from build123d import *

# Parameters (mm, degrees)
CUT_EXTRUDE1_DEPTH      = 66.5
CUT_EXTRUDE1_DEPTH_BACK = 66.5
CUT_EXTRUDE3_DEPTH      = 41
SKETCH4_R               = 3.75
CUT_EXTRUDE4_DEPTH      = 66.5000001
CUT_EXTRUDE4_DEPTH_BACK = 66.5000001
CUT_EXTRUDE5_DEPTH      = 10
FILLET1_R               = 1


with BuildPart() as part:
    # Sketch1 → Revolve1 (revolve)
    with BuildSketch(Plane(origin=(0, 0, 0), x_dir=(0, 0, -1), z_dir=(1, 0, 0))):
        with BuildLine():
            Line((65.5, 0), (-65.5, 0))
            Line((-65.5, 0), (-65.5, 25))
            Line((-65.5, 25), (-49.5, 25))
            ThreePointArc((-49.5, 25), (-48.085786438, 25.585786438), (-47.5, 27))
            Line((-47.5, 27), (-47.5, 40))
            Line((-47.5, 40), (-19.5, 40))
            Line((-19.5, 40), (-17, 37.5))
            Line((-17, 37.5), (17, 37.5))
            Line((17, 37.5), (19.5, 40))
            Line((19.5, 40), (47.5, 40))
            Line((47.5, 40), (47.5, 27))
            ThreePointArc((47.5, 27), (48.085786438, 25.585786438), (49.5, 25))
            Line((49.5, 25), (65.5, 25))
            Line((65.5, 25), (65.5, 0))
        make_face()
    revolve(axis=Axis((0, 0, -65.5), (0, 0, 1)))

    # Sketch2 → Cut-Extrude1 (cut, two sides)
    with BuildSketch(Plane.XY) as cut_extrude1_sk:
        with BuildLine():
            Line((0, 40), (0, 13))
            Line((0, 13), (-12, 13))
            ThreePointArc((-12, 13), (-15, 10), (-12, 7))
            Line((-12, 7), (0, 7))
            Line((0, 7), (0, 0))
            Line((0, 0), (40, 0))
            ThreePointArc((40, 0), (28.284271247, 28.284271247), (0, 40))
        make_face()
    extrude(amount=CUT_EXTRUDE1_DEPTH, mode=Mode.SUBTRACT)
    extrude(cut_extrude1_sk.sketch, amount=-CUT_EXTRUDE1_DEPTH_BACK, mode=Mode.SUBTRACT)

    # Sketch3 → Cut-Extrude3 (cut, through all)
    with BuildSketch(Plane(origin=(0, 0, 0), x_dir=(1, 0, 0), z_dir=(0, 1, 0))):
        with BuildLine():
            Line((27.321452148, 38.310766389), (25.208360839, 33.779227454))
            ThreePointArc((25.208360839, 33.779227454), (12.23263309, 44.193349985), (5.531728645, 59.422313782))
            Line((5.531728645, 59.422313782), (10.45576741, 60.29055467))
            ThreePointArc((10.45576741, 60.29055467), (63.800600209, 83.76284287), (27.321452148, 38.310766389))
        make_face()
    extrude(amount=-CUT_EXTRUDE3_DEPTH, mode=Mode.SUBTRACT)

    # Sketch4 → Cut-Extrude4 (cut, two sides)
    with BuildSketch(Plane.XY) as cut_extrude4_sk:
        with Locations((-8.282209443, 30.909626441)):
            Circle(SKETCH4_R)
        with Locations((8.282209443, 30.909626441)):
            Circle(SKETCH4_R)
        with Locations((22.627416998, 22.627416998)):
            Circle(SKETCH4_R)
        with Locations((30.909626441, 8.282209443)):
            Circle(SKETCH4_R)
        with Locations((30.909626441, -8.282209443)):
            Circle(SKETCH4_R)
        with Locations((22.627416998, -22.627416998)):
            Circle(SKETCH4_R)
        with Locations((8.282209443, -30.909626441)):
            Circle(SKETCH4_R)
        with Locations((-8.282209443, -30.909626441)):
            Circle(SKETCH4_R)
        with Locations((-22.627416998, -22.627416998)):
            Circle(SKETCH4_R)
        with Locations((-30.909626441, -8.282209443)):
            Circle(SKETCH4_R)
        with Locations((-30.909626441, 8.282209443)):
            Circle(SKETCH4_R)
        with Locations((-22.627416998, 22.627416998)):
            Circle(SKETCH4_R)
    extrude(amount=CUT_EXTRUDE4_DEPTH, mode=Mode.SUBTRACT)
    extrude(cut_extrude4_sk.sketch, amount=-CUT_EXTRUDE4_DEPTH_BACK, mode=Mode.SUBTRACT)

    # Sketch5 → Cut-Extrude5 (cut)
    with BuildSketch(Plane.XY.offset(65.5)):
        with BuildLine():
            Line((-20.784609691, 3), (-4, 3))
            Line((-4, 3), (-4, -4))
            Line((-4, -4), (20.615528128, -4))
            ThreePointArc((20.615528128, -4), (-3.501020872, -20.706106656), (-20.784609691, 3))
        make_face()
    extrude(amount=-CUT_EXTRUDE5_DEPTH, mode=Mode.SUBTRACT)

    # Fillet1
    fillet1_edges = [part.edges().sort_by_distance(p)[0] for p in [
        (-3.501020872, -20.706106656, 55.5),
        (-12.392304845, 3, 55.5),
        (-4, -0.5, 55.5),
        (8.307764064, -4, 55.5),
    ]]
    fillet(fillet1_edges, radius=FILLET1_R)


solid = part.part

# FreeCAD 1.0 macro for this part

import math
import FreeCAD as App
import Part
import Sketcher
Q = App.Units.Quantity


def edges_at(feature, points):
    """Names of the edges that pass closest to the given points."""
    edges = feature.Shape.Edges
    near = lambda p: min(range(len(edges)), key=lambda i: edges[i].distToShape(Part.Vertex(*p))[0])
    return sorted({f"Edge{near(p) + 1}" for p in points})

doc = App.newDocument("Part")
params = doc.addObject("Spreadsheet::Sheet", "Params")
for row, (alias, value) in enumerate([
    ("sketch1_radius", "2 mm"),
    ("sketch1_width", "25 mm"),
    ("sketch1_width2", "13 mm"),
    ("sketch1_height", "131 mm"),
    ("sketch1_height2", "16 mm"),
    ("revolution_angle", "360 deg"),
    ("sketch2_radius", "3 mm"),
    ("sketch2_radius2", "40 mm"),
    ("sketch2_width", "12 mm"),
    ("sketch2_height", "27 mm"),
    ("sketch3_radius", "30 mm"),
    ("sketch3_radius2", "35 mm"),
    ("sketch4_diameter", "7.5 mm"),
    ("sketch5_radius", "21 mm"),
    ("sketch5_height", "7 mm"),
    ("pocket4_length", "10 mm"),
    ("fillet_radius", "1 mm"),
], start=1):
    params.set(f"A{row}", alias)
    params.set(f"B{row}", "=" + value)
    params.setAlias(f"B{row}", alias)

body = doc.addObject("PartDesign::Body", "Body")

# Sketch on YZ plane
sketch1 = doc.addObject("Sketcher::SketchObject", "Sketch")
body.addObject(sketch1)
sketch1.AttachmentSupport = (doc.YZ_Plane, [""])
sketch1.MapMode = "FlatFace"
sketch1.addGeometry([
    Part.LineSegment(App.Vector(0, 65.5, 0), App.Vector(0, -65.5, 0)),  # 0
    Part.LineSegment(App.Vector(0, -65.5, 0), App.Vector(25, -65.5, 0)),  # 1
    Part.LineSegment(App.Vector(25, -65.5, 0), App.Vector(25, -49.5, 0)),  # 2
    Part.ArcOfCircle(Part.Circle(App.Vector(27, -49.5, 0), App.Vector(0, 0, 1), 2), math.radians(90), math.radians(180)),  # 3
    Part.LineSegment(App.Vector(27, -47.5, 0), App.Vector(40, -47.5, 0)),  # 4
    Part.LineSegment(App.Vector(40, -47.5, 0), App.Vector(40, -19.5, 0)),  # 5
    Part.LineSegment(App.Vector(40, -19.5, 0), App.Vector(37.5, -17, 0)),  # 6
    Part.LineSegment(App.Vector(37.5, -17, 0), App.Vector(37.5, 17, 0)),  # 7
    Part.LineSegment(App.Vector(37.5, 17, 0), App.Vector(40, 19.5, 0)),  # 8
    Part.LineSegment(App.Vector(40, 19.5, 0), App.Vector(40, 47.5, 0)),  # 9
    Part.LineSegment(App.Vector(40, 47.5, 0), App.Vector(27, 47.5, 0)),  # 10
    Part.ArcOfCircle(Part.Circle(App.Vector(27, 49.5, 0), App.Vector(0, 0, 1), 2), math.radians(-180), math.radians(-90)),  # 11
    Part.LineSegment(App.Vector(25, 49.5, 0), App.Vector(25, 65.5, 0)),  # 12
    Part.LineSegment(App.Vector(25, 65.5, 0), App.Vector(0, 65.5, 0)),  # 13
], False)
sketch1.addConstraint([
    Sketcher.Constraint("Coincident", 0, 2, 1, 1),
    Sketcher.Constraint("Coincident", 1, 2, 2, 1),
    Sketcher.Constraint("Tangent", 2, 2, 3, 2),
    Sketcher.Constraint("Tangent", 3, 1, 4, 1),
    Sketcher.Constraint("Coincident", 4, 2, 5, 1),
    Sketcher.Constraint("Coincident", 5, 2, 6, 1),
    Sketcher.Constraint("Coincident", 6, 2, 7, 1),
    Sketcher.Constraint("Coincident", 7, 2, 8, 1),
    Sketcher.Constraint("Coincident", 8, 2, 9, 1),
    Sketcher.Constraint("Coincident", 9, 2, 10, 1),
    Sketcher.Constraint("Tangent", 10, 2, 11, 2),
    Sketcher.Constraint("Tangent", 11, 1, 12, 1),
    Sketcher.Constraint("Coincident", 12, 2, 13, 1),
    Sketcher.Constraint("Coincident", 13, 2, 0, 1),
    Sketcher.Constraint("Vertical", 0),
    Sketcher.Constraint("Horizontal", 1),
    Sketcher.Constraint("Vertical", 2),
    Sketcher.Constraint("Horizontal", 4),
    Sketcher.Constraint("Vertical", 5),
    Sketcher.Constraint("Vertical", 7),
    Sketcher.Constraint("Vertical", 9),
    Sketcher.Constraint("Horizontal", 10),
    Sketcher.Constraint("Vertical", 12),
    Sketcher.Constraint("Horizontal", 13),
    Sketcher.Constraint("Equal", 3, 11),
    Sketcher.Constraint("Symmetric", 0, 2, 13, 2, -1, 1),
    Sketcher.Constraint("Symmetric", 3, 3, 11, 3, -1),
    Sketcher.Constraint("Symmetric", 5, 2, 8, 2, -1),
    Sketcher.Constraint("Perpendicular", 6, 8),
    Sketcher.Constraint("Equal", 6, 8),
    Sketcher.Constraint("Radius", 3, Q("2 mm")),
    Sketcher.Constraint("DistanceX", 1, 1, 1, 2, Q("25 mm")),
    Sketcher.Constraint("DistanceX", 4, 1, 4, 2, Q("13 mm")),
    Sketcher.Constraint("DistanceY", 0, 2, 0, 1, Q("131 mm")),
    Sketcher.Constraint("DistanceY", 2, 1, 2, 2, Q("16 mm")),
    Sketcher.Constraint("DistanceY", 5, 1, 5, 2, Q("28 mm")),
    Sketcher.Constraint("DistanceY", 7, 1, 7, 2, Q("34 mm")),
])
sketch1.setExpression("Constraints[30]", "Params.sketch1_radius")
sketch1.setExpression("Constraints[31]", "Params.sketch1_width")
sketch1.setExpression("Constraints[32]", "Params.sketch1_width2")
sketch1.setExpression("Constraints[33]", "Params.sketch1_height")
sketch1.setExpression("Constraints[34]", "Params.sketch1_height2")
revolution = doc.addObject("PartDesign::Revolution", "Revolution")
body.addObject(revolution)
revolution.Profile = sketch1
revolution.ReferenceAxis = (sketch1, ["V_Axis"])
revolution.setExpression("Angle", "Params.revolution_angle")

# Sketch on XY plane
sketch2 = doc.addObject("Sketcher::SketchObject", "Sketch001")
body.addObject(sketch2)
sketch2.AttachmentSupport = (doc.XY_Plane, [""])
sketch2.MapMode = "FlatFace"
sketch2.addGeometry([
    Part.LineSegment(App.Vector(0, 40, 0), App.Vector(0, 13, 0)),  # 0
    Part.LineSegment(App.Vector(0, 13, 0), App.Vector(-12, 13, 0)),  # 1
    Part.ArcOfCircle(Part.Circle(App.Vector(-12, 10, 0), App.Vector(0, 0, 1), 3), math.radians(90), math.radians(270)),  # 2
    Part.LineSegment(App.Vector(-12, 7, 0), App.Vector(0, 7, 0)),  # 3
    Part.LineSegment(App.Vector(0, 7, 0), App.Vector(0, 0, 0)),  # 4
    Part.LineSegment(App.Vector(0, 0, 0), App.Vector(40, 0, 0)),  # 5
    Part.ArcOfCircle(Part.Circle(App.Vector(0, 0, 0), App.Vector(0, 0, 1), 40), math.radians(0), math.radians(90)),  # 6
], False)
sketch2.addConstraint([
    Sketcher.Constraint("Coincident", 0, 2, 1, 1),
    Sketcher.Constraint("Tangent", 1, 2, 2, 1),
    Sketcher.Constraint("Tangent", 2, 2, 3, 1),
    Sketcher.Constraint("Coincident", 3, 2, 4, 1),
    Sketcher.Constraint("Coincident", 4, 2, 5, 1),
    Sketcher.Constraint("Coincident", 5, 2, 6, 1),
    Sketcher.Constraint("Coincident", 6, 2, 0, 1),
    Sketcher.Constraint("Vertical", 0),
    Sketcher.Constraint("Horizontal", 1),
    Sketcher.Constraint("Horizontal", 3),
    Sketcher.Constraint("Vertical", 4),
    Sketcher.Constraint("Horizontal", 5),
    Sketcher.Constraint("Coincident", 6, 3, -1, 1),
    Sketcher.Constraint("Coincident", 4, 2, -1, 1),
    Sketcher.Constraint("PointOnObject", 0, 2, -2),
    Sketcher.Constraint("Radius", 2, Q("3 mm")),
    Sketcher.Constraint("Radius", 6, Q("40 mm")),
    Sketcher.Constraint("DistanceX", 1, 2, 1, 1, Q("12 mm")),
    Sketcher.Constraint("DistanceY", 0, 2, 0, 1, Q("27 mm")),
])
sketch2.setExpression("Constraints[15]", "Params.sketch2_radius")
sketch2.setExpression("Constraints[16]", "Params.sketch2_radius2")
sketch2.setExpression("Constraints[17]", "Params.sketch2_width")
sketch2.setExpression("Constraints[18]", "Params.sketch2_height")
pocket1 = doc.addObject("PartDesign::Pocket", "Pocket")
body.addObject(pocket1)
pocket1.Profile = sketch2
pocket1.Type = "ThroughAll"
pocket1.Midplane = True

# Sketch on XZ plane
sketch3 = doc.addObject("Sketcher::SketchObject", "Sketch002")
body.addObject(sketch3)
sketch3.AttachmentSupport = (doc.XZ_Plane, [""])
sketch3.MapMode = "FlatFace"
sketch3.addGeometry([
    Part.LineSegment(App.Vector(25.2, -33.8, 0), App.Vector(27.3, -38.3, 0)),
    Part.ArcOfCircle(Part.Circle(App.Vector(40, -65.5, 0), App.Vector(0, 0, 1), 30), math.radians(170), math.radians(475)),
    Part.LineSegment(App.Vector(10.5, -60.3, 0), App.Vector(5.5, -59.4, 0)),
    Part.ArcOfCircle(Part.Circle(App.Vector(40, -65.5, 0), App.Vector(0, 0, 1), 35), math.radians(115), math.radians(170)),
], False)
sketch3.addConstraint([
    Sketcher.Constraint("Coincident", 0, 2, 1, 2),
    Sketcher.Constraint("Coincident", 1, 1, 2, 1),
    Sketcher.Constraint("Coincident", 2, 2, 3, 2),
    Sketcher.Constraint("Coincident", 3, 1, 0, 1),
    Sketcher.Constraint("Coincident", 3, 3, 1, 3),
    Sketcher.Constraint("Radius", 1, Q("30 mm")),
    Sketcher.Constraint("Radius", 3, Q("35 mm")),
    Sketcher.Constraint("Angle", 0, Q("-65 deg")),
    Sketcher.Constraint("Angle", 2, Q("170 deg")),
    Sketcher.Constraint("DistanceX", -1, 1, 1, 3, Q("40 mm")),
    Sketcher.Constraint("DistanceY", 1, 3, -1, 1, Q("65.5 mm")),
    Sketcher.Constraint("DistanceX", -1, 1, 2, 2, Q("5.531729 mm")),
    Sketcher.Constraint("DistanceX", -1, 1, 3, 1, Q("25.208361 mm")),
])
sketch3.setExpression("Constraints[5]", "Params.sketch3_radius")
sketch3.setExpression("Constraints[6]", "Params.sketch3_radius2")
pocket2 = doc.addObject("PartDesign::Pocket", "Pocket001")
body.addObject(pocket2)
pocket2.Profile = sketch3
pocket2.Type = "ThroughAll"
pocket2.Reversed = True

# Sketch on XY plane
sketch4 = doc.addObject("Sketcher::SketchObject", "Sketch003")
body.addObject(sketch4)
sketch4.AttachmentSupport = (doc.XY_Plane, [""])
sketch4.MapMode = "FlatFace"
sketch4.addGeometry([
    Part.Circle(App.Vector(-8.3, 30.9, 0), App.Vector(0, 0, 1), 3.8),  # 0
    Part.Circle(App.Vector(8.3, 30.9, 0), App.Vector(0, 0, 1), 3.8),  # 1
    Part.Circle(App.Vector(22.6, 22.6, 0), App.Vector(0, 0, 1), 3.8),  # 2
    Part.Circle(App.Vector(30.9, 8.3, 0), App.Vector(0, 0, 1), 3.8),  # 3
    Part.Circle(App.Vector(30.9, -8.3, 0), App.Vector(0, 0, 1), 3.8),  # 4
    Part.Circle(App.Vector(22.6, -22.6, 0), App.Vector(0, 0, 1), 3.8),  # 5
    Part.Circle(App.Vector(8.3, -30.9, 0), App.Vector(0, 0, 1), 3.8),  # 6
    Part.Circle(App.Vector(-8.3, -30.9, 0), App.Vector(0, 0, 1), 3.8),  # 7
    Part.Circle(App.Vector(-22.6, -22.6, 0), App.Vector(0, 0, 1), 3.8),  # 8
    Part.Circle(App.Vector(-30.9, -8.3, 0), App.Vector(0, 0, 1), 3.8),  # 9
    Part.Circle(App.Vector(-30.9, 8.3, 0), App.Vector(0, 0, 1), 3.8),  # 10
    Part.Circle(App.Vector(-22.6, 22.6, 0), App.Vector(0, 0, 1), 3.8),  # 11
], False)
sketch4.addConstraint([
    Sketcher.Constraint("Equal", 0, 1),
    Sketcher.Constraint("Equal", 1, 2),
    Sketcher.Constraint("Equal", 2, 3),
    Sketcher.Constraint("Equal", 3, 4),
    Sketcher.Constraint("Equal", 4, 5),
    Sketcher.Constraint("Equal", 5, 6),
    Sketcher.Constraint("Equal", 6, 7),
    Sketcher.Constraint("Equal", 7, 8),
    Sketcher.Constraint("Equal", 8, 9),
    Sketcher.Constraint("Equal", 9, 10),
    Sketcher.Constraint("Equal", 10, 11),
    Sketcher.Constraint("Symmetric", 0, 3, 6, 3, -1, 1),
    Sketcher.Constraint("Symmetric", 1, 3, 7, 3, -1, 1),
    Sketcher.Constraint("Symmetric", 2, 3, 8, 3, -1, 1),
    Sketcher.Constraint("Symmetric", 3, 3, 9, 3, -1, 1),
    Sketcher.Constraint("Symmetric", 4, 3, 10, 3, -1, 1),
    Sketcher.Constraint("Symmetric", 5, 3, 11, 3, -1, 1),
    Sketcher.Constraint("Symmetric", 0, 3, 1, 3, -2),
    Sketcher.Constraint("Symmetric", 5, 3, 8, 3, -2),
    Sketcher.Constraint("Symmetric", 4, 3, 9, 3, -2),
    Sketcher.Constraint("Diameter", 0, Q("7.5 mm")),
    Sketcher.Constraint("DistanceX", 0, 3, -1, 1, Q("8.282209 mm")),
    Sketcher.Constraint("DistanceY", -1, 1, 3, 3, Q("8.282209 mm")),
    Sketcher.Constraint("DistanceY", 2, 3, 1, 3, Q("8.282209 mm")),
    Sketcher.Constraint("DistanceX", 2, 3, 3, 3, Q("8.282209 mm")),
    Sketcher.Constraint("DistanceY", -1, 1, 0, 3, Q("30.909626 mm")),
    Sketcher.Constraint("DistanceX", -1, 1, 2, 3, Q("22.627417 mm")),
])
sketch4.setExpression("Constraints[20]", "Params.sketch4_diameter")
pocket3 = doc.addObject("PartDesign::Pocket", "Pocket002")
body.addObject(pocket3)
pocket3.Profile = sketch4
pocket3.Type = "ThroughAll"
pocket3.Midplane = True

# Sketch on XY plane
sketch5 = doc.addObject("Sketcher::SketchObject", "Sketch004")
body.addObject(sketch5)
sketch5.AttachmentSupport = (doc.XY_Plane, [""])
sketch5.MapMode = "FlatFace"
sketch5.AttachmentOffset = App.Placement(App.Vector(0, 0, 65.5), App.Rotation())
sketch5.addGeometry([
    Part.LineSegment(App.Vector(-4, 3, 0), App.Vector(-21, 3, 0)),
    Part.ArcOfCircle(Part.Circle(App.Vector(0, 0, 0), App.Vector(0, 0, 1), 21), math.radians(172), math.radians(349)),
    Part.LineSegment(App.Vector(21, -4, 0), App.Vector(-4, -4, 0)),
    Part.LineSegment(App.Vector(-4, -4, 0), App.Vector(-4, 3, 0)),
], False)
sketch5.addConstraint([
    Sketcher.Constraint("Coincident", 0, 2, 1, 1),
    Sketcher.Constraint("Coincident", 1, 2, 2, 1),
    Sketcher.Constraint("Coincident", 2, 2, 3, 1),
    Sketcher.Constraint("Coincident", 3, 2, 0, 1),
    Sketcher.Constraint("Horizontal", 0),
    Sketcher.Constraint("Horizontal", 2),
    Sketcher.Constraint("Vertical", 3),
    Sketcher.Constraint("Coincident", 1, 3, -1, 1),
    Sketcher.Constraint("Radius", 1, Q("21 mm")),
    Sketcher.Constraint("DistanceY", 3, 1, 3, 2, Q("7 mm")),
    Sketcher.Constraint("DistanceY", -1, 1, 0, 2, Q("3 mm")),
    Sketcher.Constraint("DistanceX", 2, 2, -1, 1, Q("4 mm")),
])
sketch5.setExpression("Constraints[8]", "Params.sketch5_radius")
sketch5.setExpression("Constraints[9]", "Params.sketch5_height")
pocket4 = doc.addObject("PartDesign::Pocket", "Pocket003")
body.addObject(pocket4)
pocket4.Profile = sketch5
pocket4.setExpression("Length", "Params.pocket4_length")
doc.recompute()

fillet = doc.addObject("PartDesign::Fillet", "Fillet")
body.addObject(fillet)
fillet.Base = (pocket4, edges_at(pocket4, [
    (-3.501, -20.706, 55.5),
    (-12.392, 3, 55.5),
    (-4, -0.5, 55.5),
    (8.308, -4, 55.5),
]))
fillet.setExpression("Radius", "Params.fillet_radius")

doc.recompute()
